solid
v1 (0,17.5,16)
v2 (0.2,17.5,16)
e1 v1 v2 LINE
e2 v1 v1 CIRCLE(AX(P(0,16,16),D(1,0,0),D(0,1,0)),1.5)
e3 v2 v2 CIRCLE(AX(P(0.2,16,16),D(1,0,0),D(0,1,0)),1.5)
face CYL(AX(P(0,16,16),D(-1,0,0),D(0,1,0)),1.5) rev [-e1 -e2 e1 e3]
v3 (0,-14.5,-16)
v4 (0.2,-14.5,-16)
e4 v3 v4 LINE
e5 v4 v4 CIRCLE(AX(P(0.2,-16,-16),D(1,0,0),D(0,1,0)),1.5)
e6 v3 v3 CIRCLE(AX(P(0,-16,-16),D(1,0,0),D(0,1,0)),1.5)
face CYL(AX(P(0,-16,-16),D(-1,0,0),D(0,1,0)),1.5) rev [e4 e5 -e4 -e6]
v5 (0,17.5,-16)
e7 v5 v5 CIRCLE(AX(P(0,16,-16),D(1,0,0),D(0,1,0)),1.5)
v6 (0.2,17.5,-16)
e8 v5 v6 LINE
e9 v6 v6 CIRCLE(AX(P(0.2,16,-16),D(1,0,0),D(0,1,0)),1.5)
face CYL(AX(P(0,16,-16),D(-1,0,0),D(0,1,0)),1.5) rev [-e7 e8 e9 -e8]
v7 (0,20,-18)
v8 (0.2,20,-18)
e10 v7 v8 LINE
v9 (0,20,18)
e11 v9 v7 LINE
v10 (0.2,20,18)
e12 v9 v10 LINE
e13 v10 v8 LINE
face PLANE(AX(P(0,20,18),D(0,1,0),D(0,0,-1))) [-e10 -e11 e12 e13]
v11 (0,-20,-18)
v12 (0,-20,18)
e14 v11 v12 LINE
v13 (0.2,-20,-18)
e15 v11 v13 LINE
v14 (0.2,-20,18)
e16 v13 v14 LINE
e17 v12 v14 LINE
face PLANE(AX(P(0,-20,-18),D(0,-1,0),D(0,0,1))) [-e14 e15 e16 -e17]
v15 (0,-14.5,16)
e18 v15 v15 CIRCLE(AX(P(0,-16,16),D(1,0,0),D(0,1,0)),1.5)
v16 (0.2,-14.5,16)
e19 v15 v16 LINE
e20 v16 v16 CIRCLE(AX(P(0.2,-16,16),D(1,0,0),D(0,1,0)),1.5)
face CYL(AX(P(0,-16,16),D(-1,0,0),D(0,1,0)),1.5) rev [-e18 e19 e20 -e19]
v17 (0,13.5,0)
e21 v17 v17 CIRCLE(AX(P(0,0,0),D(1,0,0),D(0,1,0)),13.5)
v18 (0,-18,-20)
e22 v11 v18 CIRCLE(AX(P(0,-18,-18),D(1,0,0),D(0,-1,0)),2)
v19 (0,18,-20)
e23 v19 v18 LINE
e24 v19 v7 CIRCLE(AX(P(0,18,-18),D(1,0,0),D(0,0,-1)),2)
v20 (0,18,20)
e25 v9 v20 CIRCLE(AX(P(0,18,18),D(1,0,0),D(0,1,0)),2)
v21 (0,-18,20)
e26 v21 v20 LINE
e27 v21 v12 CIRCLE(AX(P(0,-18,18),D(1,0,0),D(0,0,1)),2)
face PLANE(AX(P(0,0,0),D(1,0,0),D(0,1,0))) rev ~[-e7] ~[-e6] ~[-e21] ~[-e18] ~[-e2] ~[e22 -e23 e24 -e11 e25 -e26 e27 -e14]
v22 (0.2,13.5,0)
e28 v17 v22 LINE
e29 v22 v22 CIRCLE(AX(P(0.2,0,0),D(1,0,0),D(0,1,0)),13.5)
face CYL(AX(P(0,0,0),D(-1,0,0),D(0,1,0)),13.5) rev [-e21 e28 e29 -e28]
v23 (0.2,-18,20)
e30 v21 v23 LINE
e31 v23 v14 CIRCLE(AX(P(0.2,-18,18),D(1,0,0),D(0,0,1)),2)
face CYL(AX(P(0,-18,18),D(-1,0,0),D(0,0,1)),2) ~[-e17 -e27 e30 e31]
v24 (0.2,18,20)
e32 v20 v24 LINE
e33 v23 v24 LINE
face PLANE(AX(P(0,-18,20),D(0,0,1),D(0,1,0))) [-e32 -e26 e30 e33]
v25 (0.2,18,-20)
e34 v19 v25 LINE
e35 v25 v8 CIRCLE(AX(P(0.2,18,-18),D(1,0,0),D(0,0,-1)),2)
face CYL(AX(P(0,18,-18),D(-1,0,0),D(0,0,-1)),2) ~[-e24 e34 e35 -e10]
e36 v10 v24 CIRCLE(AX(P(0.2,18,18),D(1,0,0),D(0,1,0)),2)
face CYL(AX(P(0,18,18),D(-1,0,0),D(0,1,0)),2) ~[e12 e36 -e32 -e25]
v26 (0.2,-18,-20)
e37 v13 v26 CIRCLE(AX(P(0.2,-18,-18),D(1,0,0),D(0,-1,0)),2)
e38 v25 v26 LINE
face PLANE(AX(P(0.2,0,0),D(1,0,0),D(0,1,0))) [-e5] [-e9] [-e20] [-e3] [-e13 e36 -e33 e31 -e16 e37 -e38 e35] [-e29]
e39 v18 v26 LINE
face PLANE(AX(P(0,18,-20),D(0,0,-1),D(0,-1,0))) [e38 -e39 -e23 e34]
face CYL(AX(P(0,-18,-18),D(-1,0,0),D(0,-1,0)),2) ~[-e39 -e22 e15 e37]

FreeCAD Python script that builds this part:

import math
import FreeCAD as App
import Part
import Sketcher

V = App.Vector
Q = App.Units.Quantity

doc = App.newDocument("Part")
body = doc.addObject("PartDesign::Body", "Body")

# Sketch on YZ plane
sketch1 = doc.addObject("Sketcher::SketchObject", "Sketch")
body.addObject(sketch1)
sketch1.AttachmentSupport = (doc.YZ_Plane, [""])
sketch1.MapMode = "FlatFace"
sketch1.addGeometry(Part.LineSegment(V(18, 20, 0), V(-18, 20, 0)), False)
sketch1.addGeometry(Part.ArcOfCircle(Part.Circle(V(-18, 18, 0), V(0, 0, 1), 2), math.radians(90), math.radians(180)), False)
sketch1.addGeometry(Part.LineSegment(V(-20, 18, 0), V(-20, -18, 0)), False)
sketch1.addGeometry(Part.ArcOfCircle(Part.Circle(V(-18, -18, 0), V(0, 0, 1), 2), math.radians(180), math.radians(270)), False)
sketch1.addGeometry(Part.LineSegment(V(-18, -20, 0), V(18, -20, 0)), False)
sketch1.addGeometry(Part.ArcOfCircle(Part.Circle(V(18, -18, 0), V(0, 0, 1), 2), math.radians(-90), math.radians(0)), False)
sketch1.addGeometry(Part.LineSegment(V(20, -18, 0), V(20, 18, 0)), False)
sketch1.addGeometry(Part.ArcOfCircle(Part.Circle(V(18, 18, 0), V(0, 0, 1), 2), math.radians(0), math.radians(90)), False)
sketch1.addGeometry(Part.Circle(V(-16, -16, 0), V(0, 0, 1), 1.5), False)
sketch1.addGeometry(Part.Circle(V(16, -16, 0), V(0, 0, 1), 1.5), False)
sketch1.addGeometry(Part.Circle(V(-16, 16, 0), V(0, 0, 1), 1.5), False)
sketch1.addGeometry(Part.Circle(V(0, 0, 0), V(0, 0, 1), 13.5), False)
sketch1.addGeometry(Part.Circle(V(16, 16, 0), V(0, 0, 1), 1.5), False)
sketch1.addConstraint(Sketcher.Constraint("Tangent", 0, 2, 1, 1))
sketch1.addConstraint(Sketcher.Constraint("Tangent", 1, 2, 2, 1))
sketch1.addConstraint(Sketcher.Constraint("Tangent", 2, 2, 3, 1))
sketch1.addConstraint(Sketcher.Constraint("Tangent", 3, 2, 4, 1))
sketch1.addConstraint(Sketcher.Constraint("Tangent", 4, 2, 5, 1))
sketch1.addConstraint(Sketcher.Constraint("Tangent", 5, 2, 6, 1))
sketch1.addConstraint(Sketcher.Constraint("Tangent", 6, 2, 7, 1))
sketch1.addConstraint(Sketcher.Constraint("Tangent", 7, 2, 0, 1))
sketch1.addConstraint(Sketcher.Constraint("Horizontal", 0))
sketch1.addConstraint(Sketcher.Constraint("Vertical", 2))
sketch1.addConstraint(Sketcher.Constraint("Horizontal", 4))
sketch1.addConstraint(Sketcher.Constraint("Vertical", 6))
sketch1.addConstraint(Sketcher.Constraint("Coincident", 11, 3, -1, 1))
sketch1.addConstraint(Sketcher.Constraint("Equal", 1, 3))
sketch1.addConstraint(Sketcher.Constraint("Equal", 3, 5))
sketch1.addConstraint(Sketcher.Constraint("Equal", 5, 7))
sketch1.addConstraint(Sketcher.Constraint("Equal", 8, 9))
sketch1.addConstraint(Sketcher.Constraint("Equal", 9, 10))
sketch1.addConstraint(Sketcher.Constraint("Equal", 10, 12))
sketch1.addConstraint(Sketcher.Constraint("Symmetric", 1, 3, 5, 3, -1, 1))
sketch1.addConstraint(Sketcher.Constraint("Symmetric", 9, 3, 10, 3, -1, 1))
sketch1.addConstraint(Sketcher.Constraint("Symmetric", 8, 3, 12, 3, -1, 1))
sketch1.addConstraint(Sketcher.Constraint("Symmetric", 8, 3, 9, 3, -2))
sketch1.addConstraint(Sketcher.Constraint("Equal", 4, 2))
sketch1.addConstraint(Sketcher.Constraint("Diameter", 8, Q("3 mm")))
sketch1.addConstraint(Sketcher.Constraint("Diameter", 11, Q("27 mm")))
sketch1.addConstraint(Sketcher.Constraint("Radius", 1, Q("2 mm")))
sketch1.addConstraint(Sketcher.Constraint("DistanceX", 3, 3, 8, 3, Q("2 mm")))
sketch1.addConstraint(Sketcher.Constraint("DistanceY", 3, 3, 8, 3, Q("2 mm")))
sketch1.addConstraint(Sketcher.Constraint("DistanceX", 8, 3, 9, 3, Q("32 mm")))
pad1 = doc.addObject("PartDesign::Pad", "Pad")
body.addObject(pad1)
pad1.Profile = sketch1
pad1.Length = 0.2

doc.recompute()
